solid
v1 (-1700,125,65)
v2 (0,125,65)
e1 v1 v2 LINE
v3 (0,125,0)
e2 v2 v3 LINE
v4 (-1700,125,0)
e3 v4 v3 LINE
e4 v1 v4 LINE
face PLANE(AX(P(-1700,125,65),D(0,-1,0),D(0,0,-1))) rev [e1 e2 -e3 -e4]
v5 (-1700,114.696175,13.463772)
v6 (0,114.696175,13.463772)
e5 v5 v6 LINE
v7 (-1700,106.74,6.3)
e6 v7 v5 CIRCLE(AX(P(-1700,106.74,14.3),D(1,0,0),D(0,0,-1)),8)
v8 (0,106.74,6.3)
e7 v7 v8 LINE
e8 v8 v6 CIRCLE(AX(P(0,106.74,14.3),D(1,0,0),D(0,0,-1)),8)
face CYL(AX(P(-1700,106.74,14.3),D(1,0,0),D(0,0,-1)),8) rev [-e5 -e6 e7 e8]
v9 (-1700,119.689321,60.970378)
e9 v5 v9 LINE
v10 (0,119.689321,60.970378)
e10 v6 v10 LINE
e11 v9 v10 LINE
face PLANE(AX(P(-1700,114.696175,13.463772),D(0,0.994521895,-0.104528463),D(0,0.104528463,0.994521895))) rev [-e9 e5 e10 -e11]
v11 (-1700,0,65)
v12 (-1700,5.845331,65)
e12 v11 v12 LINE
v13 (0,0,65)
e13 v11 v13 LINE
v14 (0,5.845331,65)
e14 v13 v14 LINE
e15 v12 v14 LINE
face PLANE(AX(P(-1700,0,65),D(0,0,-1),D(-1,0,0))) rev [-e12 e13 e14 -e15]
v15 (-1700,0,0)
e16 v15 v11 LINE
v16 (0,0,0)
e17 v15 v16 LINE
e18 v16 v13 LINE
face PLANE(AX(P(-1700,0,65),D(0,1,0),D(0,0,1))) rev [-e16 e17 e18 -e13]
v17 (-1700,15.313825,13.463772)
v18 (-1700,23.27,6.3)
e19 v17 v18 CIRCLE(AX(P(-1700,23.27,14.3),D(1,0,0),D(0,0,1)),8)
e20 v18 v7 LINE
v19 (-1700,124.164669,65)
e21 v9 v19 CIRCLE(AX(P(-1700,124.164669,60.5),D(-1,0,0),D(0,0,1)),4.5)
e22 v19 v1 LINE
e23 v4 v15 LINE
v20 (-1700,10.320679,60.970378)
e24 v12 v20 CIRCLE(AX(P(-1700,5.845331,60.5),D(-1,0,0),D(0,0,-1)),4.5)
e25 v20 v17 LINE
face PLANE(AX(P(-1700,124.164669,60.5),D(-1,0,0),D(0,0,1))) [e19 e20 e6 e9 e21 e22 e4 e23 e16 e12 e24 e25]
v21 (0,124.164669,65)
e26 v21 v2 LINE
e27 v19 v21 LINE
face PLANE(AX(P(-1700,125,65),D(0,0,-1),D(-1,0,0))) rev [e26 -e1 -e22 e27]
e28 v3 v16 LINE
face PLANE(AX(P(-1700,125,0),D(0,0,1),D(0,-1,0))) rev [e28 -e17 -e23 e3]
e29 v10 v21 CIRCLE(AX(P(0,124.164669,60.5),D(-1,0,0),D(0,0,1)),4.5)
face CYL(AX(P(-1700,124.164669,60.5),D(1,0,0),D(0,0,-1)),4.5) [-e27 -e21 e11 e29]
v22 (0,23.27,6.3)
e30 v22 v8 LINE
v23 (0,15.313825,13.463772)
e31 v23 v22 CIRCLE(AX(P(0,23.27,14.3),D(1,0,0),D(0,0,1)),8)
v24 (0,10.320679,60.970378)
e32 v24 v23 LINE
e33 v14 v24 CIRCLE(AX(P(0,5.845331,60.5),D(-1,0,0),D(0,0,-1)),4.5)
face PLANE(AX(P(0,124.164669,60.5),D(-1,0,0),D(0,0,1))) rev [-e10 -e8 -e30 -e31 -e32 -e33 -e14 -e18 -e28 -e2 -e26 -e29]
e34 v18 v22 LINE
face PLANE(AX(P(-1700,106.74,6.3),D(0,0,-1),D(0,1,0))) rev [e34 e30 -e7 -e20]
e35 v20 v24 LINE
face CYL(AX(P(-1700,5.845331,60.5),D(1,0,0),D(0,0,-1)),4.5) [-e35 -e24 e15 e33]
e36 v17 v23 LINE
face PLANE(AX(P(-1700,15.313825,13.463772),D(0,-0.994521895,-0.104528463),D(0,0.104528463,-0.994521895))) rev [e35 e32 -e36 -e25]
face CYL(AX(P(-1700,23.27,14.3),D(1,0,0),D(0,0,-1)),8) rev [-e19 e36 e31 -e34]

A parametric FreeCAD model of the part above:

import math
import FreeCAD as App
import Part
import Sketcher
Q = App.Units.Quantity

doc = App.newDocument("Part")
params = doc.addObject("Spreadsheet::Sheet", "Params")
for row, (alias, value) in enumerate([
    ("sketch1_radius", "8 mm"),
    ("sketch1_radius2", "4.5 mm"),
    ("sketch1_width", "125 mm"),
    ("sketch1_height", "65 mm"),
    ("sketch1_width2", "83.47 mm"),
    ("pad1_length", "1700 mm"),
], start=1):
    params.set(f"A{row}", alias)
    params.set(f"B{row}", "=" + value)
    params.setAlias(f"B{row}", alias)

body = doc.addObject("PartDesign::Body", "Body")

# Sketch on YZ plane
sketch1 = body.newObject("Sketcher::SketchObject", "Sketch")
sketch1.AttachmentSupport = (doc.getObject("YZ_Plane"), [""])
sketch1.MapMode = "FlatFace"
sketch1.addGeometry([
    Part.LineSegment(App.Vector(125, 65, 0), App.Vector(125, 0, 0)),  # 0
    Part.LineSegment(App.Vector(125, 0, 0), App.Vector(0, 0, 0)),  # 1
    Part.LineSegment(App.Vector(0, 0, 0), App.Vector(0, 65, 0)),  # 2
    Part.LineSegment(App.Vector(0, 65, 0), App.Vector(5.8, 65, 0)),  # 3
    Part.ArcOfCircle(Part.Circle(App.Vector(5.8, 60.5, 0), App.Vector(0, 0, 1), 4.5), math.radians(6), math.radians(90)),  # 4
    Part.LineSegment(App.Vector(10.3, 61, 0), App.Vector(15.3, 13.5, 0)),  # 5
    Part.ArcOfCircle(Part.Circle(App.Vector(23.3, 14.3, 0), App.Vector(0, 0, 1), 8), math.radians(-174), math.radians(-90)),  # 6
    Part.LineSegment(App.Vector(23.3, 6.3, 0), App.Vector(106.7, 6.3, 0)),  # 7
    Part.ArcOfCircle(Part.Circle(App.Vector(106.7, 14.3, 0), App.Vector(0, 0, 1), 8), math.radians(-90), math.radians(-6)),  # 8
    Part.LineSegment(App.Vector(114.7, 13.5, 0), App.Vector(119.7, 61, 0)),  # 9
    Part.ArcOfCircle(Part.Circle(App.Vector(124.2, 60.5, 0), App.Vector(0, 0, 1), 4.5), math.radians(90), math.radians(174)),  # 10
    Part.LineSegment(App.Vector(124.2, 65, 0), App.Vector(125, 65, 0)),  # 11
], False)
sketch1.addConstraint([
    Sketcher.Constraint("Coincident", 0, 2, 1, 1),
    Sketcher.Constraint("Coincident", 1, 2, 2, 1),
    Sketcher.Constraint("Coincident", 2, 2, 3, 1),
    Sketcher.Constraint("Tangent", 3, 2, 4, 2),
    Sketcher.Constraint("Tangent", 4, 1, 5, 1),
    Sketcher.Constraint("Tangent", 5, 2, 6, 1),
    Sketcher.Constraint("Tangent", 6, 2, 7, 1),
    Sketcher.Constraint("Tangent", 7, 2, 8, 1),
    Sketcher.Constraint("Tangent", 8, 2, 9, 1),
    Sketcher.Constraint("Tangent", 9, 2, 10, 2),
    Sketcher.Constraint("Tangent", 10, 1, 11, 1),
    Sketcher.Constraint("Coincident", 11, 2, 0, 1),
    Sketcher.Constraint("Vertical", 0),
    Sketcher.Constraint("Horizontal", 1),
    Sketcher.Constraint("Vertical", 2),
    Sketcher.Constraint("Horizontal", 3),
    Sketcher.Constraint("Horizontal", 7),
    Sketcher.Constraint("Horizontal", 11),
    Sketcher.Constraint("Coincident", 1, 2, -1, 1),
    Sketcher.Constraint("Equal", 6, 8),
    Sketcher.Constraint("Equal", 4, 10),
    Sketcher.Constraint("Horizontal", 4, 3, 10, 3),
    Sketcher.Constraint("Horizontal", 5, 2, 8, 2),
    Sketcher.Constraint("Radius", 6, Q("8 mm")),
    Sketcher.Constraint("Radius", 4, Q("4.5 mm")),
    Sketcher.Constraint("DistanceX", 1, 2, 1, 1, Q("125 mm")),
    Sketcher.Constraint("DistanceY", 0, 2, 0, 1, Q("65 mm")),
    Sketcher.Constraint("Angle", 5, Q("-84 deg")),
    Sketcher.Constraint("DistanceX", 7, 1, 7, 2, Q("83.47 mm")),
    Sketcher.Constraint("DistanceY", -1, 1, 6, 3, Q("14.3 mm")),
    Sketcher.Constraint("DistanceX", -1, 1, 6, 3, Q("23.27 mm")),
])
sketch1.setExpression("Constraints[23]", "Params.sketch1_radius")
sketch1.setExpression("Constraints[24]", "Params.sketch1_radius2")
sketch1.setExpression("Constraints[25]", "Params.sketch1_width")
sketch1.setExpression("Constraints[26]", "Params.sketch1_height")
sketch1.setExpression("Constraints[28]", "Params.sketch1_width2")
pad1 = body.newObject("PartDesign::Pad", "Pad")
pad1.Profile = sketch1
pad1.setExpression("Length", "Params.pad1_length")
pad1.Reversed = True

doc.recompute()
